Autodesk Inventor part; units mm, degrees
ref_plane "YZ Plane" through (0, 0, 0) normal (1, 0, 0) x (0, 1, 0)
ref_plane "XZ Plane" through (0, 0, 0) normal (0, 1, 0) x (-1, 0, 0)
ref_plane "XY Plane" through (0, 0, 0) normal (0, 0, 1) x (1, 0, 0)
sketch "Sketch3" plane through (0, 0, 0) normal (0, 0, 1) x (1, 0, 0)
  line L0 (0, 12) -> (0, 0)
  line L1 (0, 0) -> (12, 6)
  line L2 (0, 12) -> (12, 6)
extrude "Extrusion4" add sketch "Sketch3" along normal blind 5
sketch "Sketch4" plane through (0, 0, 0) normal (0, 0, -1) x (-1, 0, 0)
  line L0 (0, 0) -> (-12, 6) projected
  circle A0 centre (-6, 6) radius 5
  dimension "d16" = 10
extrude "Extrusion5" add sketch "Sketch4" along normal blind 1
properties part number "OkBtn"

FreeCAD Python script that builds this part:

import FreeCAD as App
import Part
import Sketcher


def add_polygon(sketch, points):
    """Adds a closed chain of lines whose ends are joined by coincident constraints."""
    first, n = sketch.GeometryCount, len(points)
    for a, b in zip(points, points[1:] + points[:1]):
        sketch.addGeometry(Part.LineSegment(App.Vector(*a, 0), App.Vector(*b, 0)), False)
    for i in range(n):
        sketch.addConstraint(Sketcher.Constraint("Coincident", first + i, 2, first + (i + 1) % n, 1))

doc = App.newDocument("Part")
body = doc.addObject("PartDesign::Body", "Body")

sketch1 = body.newObject("Sketcher::SketchObject", "Sketch")
sketch1.AttachmentSupport = (doc.getObject("XY_Plane"), [""])
sketch1.MapMode = "FlatFace"
add_polygon(sketch1, [(12, 6), (0, 12), (0, 0)])
sketch1.addConstraint([
    Sketcher.Constraint("Vertical", 1),
    Sketcher.Constraint("Coincident", 1, 2, -1, 1),
    Sketcher.Constraint("Equal", 0, 2),
    Sketcher.Constraint("DistanceY", 1, 2, 1, 1, 12.0),
    Sketcher.Constraint("DistanceX", -1, 1, 2, 2, 12.0),
])
pad1 = body.newObject("PartDesign::Pad", "Pad")
pad1.Profile = sketch1
pad1.Length = 5

sketch2 = body.newObject("Sketcher::SketchObject", "Sketch001")
sketch2.AttachmentSupport = (doc.getObject("XY_Plane"), [""])
sketch2.MapMode = "FlatFace"
sketch2.addGeometry(Part.Circle(App.Vector(6, 6, 0), App.Vector(0, 0, 1), 5), False)
sketch2.addConstraint([
    Sketcher.Constraint("Diameter", 0, 10.0),
    Sketcher.Constraint("DistanceX", -1, 1, 0, 3, 6.0),
    Sketcher.Constraint("DistanceY", -1, 1, 0, 3, 6.0),
])
pad2 = body.newObject("PartDesign::Pad", "Pad001")
pad2.Profile = sketch2
pad2.Length = 1
pad2.Reversed = True

doc.recompute()
